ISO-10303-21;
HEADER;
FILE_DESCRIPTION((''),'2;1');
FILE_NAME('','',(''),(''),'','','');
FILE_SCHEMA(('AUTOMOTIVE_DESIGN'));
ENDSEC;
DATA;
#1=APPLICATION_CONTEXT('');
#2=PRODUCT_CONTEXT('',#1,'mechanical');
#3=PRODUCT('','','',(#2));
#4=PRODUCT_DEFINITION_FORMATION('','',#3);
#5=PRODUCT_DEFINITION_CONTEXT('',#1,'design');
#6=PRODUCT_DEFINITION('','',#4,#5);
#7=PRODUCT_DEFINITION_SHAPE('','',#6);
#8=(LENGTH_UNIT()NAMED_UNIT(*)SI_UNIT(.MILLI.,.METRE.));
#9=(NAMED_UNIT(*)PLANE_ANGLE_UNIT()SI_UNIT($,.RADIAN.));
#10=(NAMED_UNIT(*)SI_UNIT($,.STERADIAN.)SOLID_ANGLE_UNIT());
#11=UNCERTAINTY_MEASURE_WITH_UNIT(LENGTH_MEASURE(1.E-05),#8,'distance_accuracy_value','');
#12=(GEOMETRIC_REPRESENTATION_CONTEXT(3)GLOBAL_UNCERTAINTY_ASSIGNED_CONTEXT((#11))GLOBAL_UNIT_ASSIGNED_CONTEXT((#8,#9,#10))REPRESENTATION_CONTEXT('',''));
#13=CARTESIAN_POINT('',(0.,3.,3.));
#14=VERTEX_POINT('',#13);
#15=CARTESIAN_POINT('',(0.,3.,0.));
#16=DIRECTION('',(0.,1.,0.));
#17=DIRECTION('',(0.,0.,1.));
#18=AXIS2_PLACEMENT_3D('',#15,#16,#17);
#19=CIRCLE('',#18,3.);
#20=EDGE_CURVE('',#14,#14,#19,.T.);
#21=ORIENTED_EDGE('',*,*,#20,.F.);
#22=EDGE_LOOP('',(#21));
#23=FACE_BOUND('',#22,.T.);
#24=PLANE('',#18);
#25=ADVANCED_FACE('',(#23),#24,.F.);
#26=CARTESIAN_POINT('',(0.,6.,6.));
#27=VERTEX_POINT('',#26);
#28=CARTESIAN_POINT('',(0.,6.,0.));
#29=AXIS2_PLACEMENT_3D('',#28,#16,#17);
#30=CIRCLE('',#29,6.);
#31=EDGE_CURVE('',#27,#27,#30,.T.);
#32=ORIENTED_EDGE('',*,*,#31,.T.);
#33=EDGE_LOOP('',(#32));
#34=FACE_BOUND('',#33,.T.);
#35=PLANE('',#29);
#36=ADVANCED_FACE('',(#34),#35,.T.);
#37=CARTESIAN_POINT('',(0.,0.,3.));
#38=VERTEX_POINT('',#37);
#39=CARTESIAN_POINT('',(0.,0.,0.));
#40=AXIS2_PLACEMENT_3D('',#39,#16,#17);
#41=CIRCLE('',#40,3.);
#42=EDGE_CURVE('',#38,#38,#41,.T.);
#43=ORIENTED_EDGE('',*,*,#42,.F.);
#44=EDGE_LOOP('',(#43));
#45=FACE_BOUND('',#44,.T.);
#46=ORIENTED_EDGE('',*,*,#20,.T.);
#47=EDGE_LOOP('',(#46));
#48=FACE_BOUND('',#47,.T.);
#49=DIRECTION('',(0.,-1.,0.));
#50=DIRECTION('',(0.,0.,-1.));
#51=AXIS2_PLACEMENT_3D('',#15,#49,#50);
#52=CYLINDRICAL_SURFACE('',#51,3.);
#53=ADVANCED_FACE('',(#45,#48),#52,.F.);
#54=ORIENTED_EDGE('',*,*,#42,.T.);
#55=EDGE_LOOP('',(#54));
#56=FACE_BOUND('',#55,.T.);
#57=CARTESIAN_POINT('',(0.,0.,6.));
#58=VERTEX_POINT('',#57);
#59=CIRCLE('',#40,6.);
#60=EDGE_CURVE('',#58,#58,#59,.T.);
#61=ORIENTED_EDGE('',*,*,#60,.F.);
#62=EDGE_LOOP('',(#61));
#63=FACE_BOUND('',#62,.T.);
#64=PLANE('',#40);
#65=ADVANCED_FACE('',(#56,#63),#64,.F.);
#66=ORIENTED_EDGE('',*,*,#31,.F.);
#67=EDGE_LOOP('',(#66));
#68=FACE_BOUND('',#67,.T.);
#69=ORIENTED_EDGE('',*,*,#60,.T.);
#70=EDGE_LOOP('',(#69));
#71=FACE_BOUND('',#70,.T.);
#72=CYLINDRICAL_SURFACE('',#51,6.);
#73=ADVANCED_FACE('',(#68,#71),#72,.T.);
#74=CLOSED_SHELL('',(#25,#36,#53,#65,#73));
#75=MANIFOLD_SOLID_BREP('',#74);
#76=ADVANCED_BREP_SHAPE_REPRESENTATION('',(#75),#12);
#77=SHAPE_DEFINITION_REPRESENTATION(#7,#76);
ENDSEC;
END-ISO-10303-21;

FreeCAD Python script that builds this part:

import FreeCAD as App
import Part
import Sketcher
from FreeCAD import Vector

doc = App.newDocument("Part")
params = doc.addObject("Spreadsheet::Sheet", "Params")
for row, (alias, value) in enumerate([
    ("sketch1_diameter", "12 mm"),
    ("sketch1_diameter2", "6 mm"),
    ("pad1_length", "3 mm"),
    ("sketch2_diameter", "12 mm"),
    ("pad2_length", "3 mm"),
], start=1):
    params.set(f"A{row}", alias)
    params.set(f"B{row}", "=" + value)
    params.setAlias(f"B{row}", alias)

body = doc.addObject("PartDesign::Body", "Body")

# Sketch on XZ plane
sketch1 = body.newObject("Sketcher::SketchObject", "Sketch")
sketch1.AttachmentSupport = (doc.getObject("XZ_Plane"), [""])
sketch1.MapMode = "FlatFace"
sketch1.addGeometry([
    Part.Circle(Vector(0, 0, 0), Vector(0, 0, 1), 6),
    Part.Circle(Vector(0, 0, 0), Vector(0, 0, 1), 3),
], False)
sketch1.addConstraint([
    Sketcher.Constraint("Coincident", 0, 3, -1, 1),
    Sketcher.Constraint("Coincident", 1, 3, -1, 1),
    Sketcher.Constraint("Diameter", 0, 12.0),
    Sketcher.Constraint("Diameter", 1, 6.0),
])
sketch1.setExpression("Constraints[2]", "Params.sketch1_diameter")
sketch1.setExpression("Constraints[3]", "Params.sketch1_diameter2")
pad1 = body.newObject("PartDesign::Pad", "Pad")
pad1.Profile = sketch1
pad1.setExpression("Length", "Params.pad1_length")
pad1.Reversed = True

# Sketch on XZ plane
sketch2 = body.newObject("Sketcher::SketchObject", "Sketch001")
sketch2.AttachmentSupport = (doc.getObject("XZ_Plane"), [""])
sketch2.MapMode = "FlatFace"
sketch2.AttachmentOffset = App.Placement(Vector(0, 0, -3), App.Rotation())
sketch2.addGeometry(Part.Circle(Vector(0, 0, 0), Vector(0, 0, 1), 6), False)
sketch2.addConstraint([
    Sketcher.Constraint("Coincident", 0, 3, -1, 1),
    Sketcher.Constraint("Diameter", 0, 12.0),
])
sketch2.setExpression("Constraints[1]", "Params.sketch2_diameter")
pad2 = body.newObject("PartDesign::Pad", "Pad001")
pad2.Profile = sketch2
pad2.setExpression("Length", "Params.pad2_length")
pad2.Reversed = True

doc.recompute()
